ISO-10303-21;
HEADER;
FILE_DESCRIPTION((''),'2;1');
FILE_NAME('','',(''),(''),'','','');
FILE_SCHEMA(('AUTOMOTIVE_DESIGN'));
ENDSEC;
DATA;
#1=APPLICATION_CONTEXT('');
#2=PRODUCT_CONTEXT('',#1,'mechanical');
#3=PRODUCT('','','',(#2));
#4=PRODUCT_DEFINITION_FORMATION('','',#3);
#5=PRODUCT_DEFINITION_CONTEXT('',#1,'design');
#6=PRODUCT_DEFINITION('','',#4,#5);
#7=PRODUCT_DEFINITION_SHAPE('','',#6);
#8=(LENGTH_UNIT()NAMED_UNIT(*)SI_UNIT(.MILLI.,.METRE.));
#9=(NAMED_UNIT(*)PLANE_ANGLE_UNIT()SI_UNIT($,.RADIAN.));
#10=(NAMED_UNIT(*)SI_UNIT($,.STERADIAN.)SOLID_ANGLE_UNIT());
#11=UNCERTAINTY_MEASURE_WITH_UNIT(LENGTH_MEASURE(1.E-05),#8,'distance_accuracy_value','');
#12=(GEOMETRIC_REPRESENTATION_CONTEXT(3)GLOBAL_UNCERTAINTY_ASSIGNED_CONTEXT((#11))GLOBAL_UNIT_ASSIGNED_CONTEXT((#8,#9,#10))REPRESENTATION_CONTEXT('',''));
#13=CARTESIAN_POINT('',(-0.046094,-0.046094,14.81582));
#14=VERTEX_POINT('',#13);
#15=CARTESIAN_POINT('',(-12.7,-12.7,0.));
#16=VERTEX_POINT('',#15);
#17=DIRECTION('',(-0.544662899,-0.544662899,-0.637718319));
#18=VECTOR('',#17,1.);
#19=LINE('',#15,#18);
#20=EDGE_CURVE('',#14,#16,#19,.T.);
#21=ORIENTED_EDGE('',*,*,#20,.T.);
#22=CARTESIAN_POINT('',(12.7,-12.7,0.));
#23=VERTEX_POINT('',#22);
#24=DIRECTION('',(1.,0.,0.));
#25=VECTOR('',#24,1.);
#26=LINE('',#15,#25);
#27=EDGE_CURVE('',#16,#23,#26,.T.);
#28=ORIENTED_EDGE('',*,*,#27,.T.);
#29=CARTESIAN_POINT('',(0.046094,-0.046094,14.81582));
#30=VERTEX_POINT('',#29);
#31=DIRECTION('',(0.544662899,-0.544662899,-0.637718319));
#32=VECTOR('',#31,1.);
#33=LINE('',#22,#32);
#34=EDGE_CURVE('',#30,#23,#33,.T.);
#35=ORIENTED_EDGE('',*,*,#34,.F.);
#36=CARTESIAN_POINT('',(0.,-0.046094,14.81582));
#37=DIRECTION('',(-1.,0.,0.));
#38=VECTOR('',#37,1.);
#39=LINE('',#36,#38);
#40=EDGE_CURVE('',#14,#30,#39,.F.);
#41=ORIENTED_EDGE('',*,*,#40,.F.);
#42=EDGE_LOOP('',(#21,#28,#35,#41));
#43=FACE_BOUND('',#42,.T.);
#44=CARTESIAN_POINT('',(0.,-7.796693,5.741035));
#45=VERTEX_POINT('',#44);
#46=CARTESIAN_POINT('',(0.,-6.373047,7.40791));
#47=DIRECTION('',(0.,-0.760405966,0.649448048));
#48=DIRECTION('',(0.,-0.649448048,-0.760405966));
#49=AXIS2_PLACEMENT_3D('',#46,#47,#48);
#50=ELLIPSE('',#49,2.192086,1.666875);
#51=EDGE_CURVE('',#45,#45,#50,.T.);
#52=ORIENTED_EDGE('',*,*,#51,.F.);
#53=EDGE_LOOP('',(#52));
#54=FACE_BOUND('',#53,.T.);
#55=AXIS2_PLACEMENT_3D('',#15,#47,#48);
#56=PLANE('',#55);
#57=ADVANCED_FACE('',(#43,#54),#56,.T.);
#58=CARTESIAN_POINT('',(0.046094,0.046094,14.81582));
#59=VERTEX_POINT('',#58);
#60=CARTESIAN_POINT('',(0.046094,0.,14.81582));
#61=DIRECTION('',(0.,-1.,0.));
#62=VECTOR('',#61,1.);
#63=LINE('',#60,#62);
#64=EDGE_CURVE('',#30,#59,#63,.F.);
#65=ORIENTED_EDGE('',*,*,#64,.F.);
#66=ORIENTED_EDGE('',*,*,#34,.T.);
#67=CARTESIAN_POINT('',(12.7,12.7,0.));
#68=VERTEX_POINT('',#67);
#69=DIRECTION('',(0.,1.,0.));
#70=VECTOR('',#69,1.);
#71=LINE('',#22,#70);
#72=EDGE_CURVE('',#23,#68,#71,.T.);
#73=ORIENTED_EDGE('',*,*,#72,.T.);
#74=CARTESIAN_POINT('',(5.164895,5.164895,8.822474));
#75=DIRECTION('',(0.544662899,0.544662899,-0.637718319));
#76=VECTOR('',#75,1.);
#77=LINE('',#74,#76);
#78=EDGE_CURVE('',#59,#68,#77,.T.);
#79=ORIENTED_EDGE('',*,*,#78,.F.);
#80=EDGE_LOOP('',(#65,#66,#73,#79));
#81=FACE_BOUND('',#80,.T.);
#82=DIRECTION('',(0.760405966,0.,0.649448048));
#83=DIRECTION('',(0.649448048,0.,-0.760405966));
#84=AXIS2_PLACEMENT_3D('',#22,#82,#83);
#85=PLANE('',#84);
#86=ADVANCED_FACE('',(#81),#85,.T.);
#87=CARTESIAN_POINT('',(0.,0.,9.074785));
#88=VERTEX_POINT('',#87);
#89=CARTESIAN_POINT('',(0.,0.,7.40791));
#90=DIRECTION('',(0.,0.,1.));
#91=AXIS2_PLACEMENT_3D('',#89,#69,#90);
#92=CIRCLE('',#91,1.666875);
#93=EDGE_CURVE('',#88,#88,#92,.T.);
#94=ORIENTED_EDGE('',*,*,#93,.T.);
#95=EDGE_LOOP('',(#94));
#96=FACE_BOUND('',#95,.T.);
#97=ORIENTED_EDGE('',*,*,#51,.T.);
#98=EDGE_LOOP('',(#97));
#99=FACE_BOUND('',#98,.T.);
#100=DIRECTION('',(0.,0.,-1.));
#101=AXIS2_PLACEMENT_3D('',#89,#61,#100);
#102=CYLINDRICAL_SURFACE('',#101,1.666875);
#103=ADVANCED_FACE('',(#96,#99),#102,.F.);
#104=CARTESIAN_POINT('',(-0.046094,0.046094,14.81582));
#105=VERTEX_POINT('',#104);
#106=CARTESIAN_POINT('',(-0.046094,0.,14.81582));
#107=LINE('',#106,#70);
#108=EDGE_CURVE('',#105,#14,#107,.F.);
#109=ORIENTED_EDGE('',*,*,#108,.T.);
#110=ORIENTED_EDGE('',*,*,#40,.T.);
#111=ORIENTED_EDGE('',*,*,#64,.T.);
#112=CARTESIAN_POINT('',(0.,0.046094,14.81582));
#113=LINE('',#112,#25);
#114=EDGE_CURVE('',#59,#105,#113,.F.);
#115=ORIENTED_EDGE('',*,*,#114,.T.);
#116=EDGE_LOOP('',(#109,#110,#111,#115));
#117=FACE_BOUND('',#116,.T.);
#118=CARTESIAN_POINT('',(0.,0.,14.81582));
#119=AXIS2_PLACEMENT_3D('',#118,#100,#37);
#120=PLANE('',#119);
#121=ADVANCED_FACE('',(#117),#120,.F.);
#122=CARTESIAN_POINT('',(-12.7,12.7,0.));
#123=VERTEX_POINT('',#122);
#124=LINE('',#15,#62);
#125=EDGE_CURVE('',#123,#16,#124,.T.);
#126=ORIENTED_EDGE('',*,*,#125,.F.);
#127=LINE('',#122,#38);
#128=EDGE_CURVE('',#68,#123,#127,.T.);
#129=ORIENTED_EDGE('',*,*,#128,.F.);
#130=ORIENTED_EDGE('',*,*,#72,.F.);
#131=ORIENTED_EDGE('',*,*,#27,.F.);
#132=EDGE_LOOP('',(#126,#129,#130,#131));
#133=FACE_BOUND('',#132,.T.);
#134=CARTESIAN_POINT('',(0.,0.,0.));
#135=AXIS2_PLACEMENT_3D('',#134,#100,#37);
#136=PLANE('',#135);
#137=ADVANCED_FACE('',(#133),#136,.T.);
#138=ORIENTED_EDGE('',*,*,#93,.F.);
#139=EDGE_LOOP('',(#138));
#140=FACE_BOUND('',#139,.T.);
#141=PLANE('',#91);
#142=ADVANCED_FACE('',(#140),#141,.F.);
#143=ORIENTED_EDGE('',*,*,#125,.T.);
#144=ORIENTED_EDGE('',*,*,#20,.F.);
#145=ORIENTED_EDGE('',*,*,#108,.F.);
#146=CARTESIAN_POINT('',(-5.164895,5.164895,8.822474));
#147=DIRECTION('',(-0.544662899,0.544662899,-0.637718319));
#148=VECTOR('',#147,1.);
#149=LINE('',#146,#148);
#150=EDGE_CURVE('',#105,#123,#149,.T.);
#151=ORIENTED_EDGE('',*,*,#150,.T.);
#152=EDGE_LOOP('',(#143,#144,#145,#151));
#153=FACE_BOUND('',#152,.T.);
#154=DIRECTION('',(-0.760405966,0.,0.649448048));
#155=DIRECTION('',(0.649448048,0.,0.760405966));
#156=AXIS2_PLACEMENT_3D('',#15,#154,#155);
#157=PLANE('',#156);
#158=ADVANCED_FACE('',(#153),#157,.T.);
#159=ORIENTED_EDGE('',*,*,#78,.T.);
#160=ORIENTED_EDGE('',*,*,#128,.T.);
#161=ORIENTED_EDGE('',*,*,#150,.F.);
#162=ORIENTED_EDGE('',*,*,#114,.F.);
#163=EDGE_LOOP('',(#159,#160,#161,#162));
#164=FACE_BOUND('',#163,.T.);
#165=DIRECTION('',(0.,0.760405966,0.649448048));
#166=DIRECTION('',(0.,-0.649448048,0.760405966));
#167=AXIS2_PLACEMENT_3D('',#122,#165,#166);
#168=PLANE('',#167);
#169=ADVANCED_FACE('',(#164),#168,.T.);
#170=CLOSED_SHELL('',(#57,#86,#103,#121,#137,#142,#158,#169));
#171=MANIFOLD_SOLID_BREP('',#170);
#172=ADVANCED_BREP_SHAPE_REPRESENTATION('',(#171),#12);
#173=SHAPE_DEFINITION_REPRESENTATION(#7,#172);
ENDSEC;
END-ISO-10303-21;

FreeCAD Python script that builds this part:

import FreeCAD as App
import Part
import Sketcher

V = App.Vector
Q = App.Units.Quantity


def add_polygon(sketch, points):
    """Adds a closed chain of lines whose ends are joined by coincident constraints."""
    first, n = sketch.GeometryCount, len(points)
    for a, b in zip(points, points[1:] + points[:1]):
        sketch.addGeometry(Part.LineSegment(App.Vector(*a, 0), App.Vector(*b, 0)), False)
    for i in range(n):
        sketch.addConstraint(Sketcher.Constraint("Coincident", first + i, 2, first + (i + 1) % n, 1))

doc = App.newDocument("Part")
params = doc.addObject("Spreadsheet::Sheet", "Params")
for row, (alias, value) in enumerate([
    ("sketch1_width", "1 in"),
    ("pad1_length", "0.5833 in"),
    ("pad1_taper", "-40.5 deg"),
    ("pocket1_length", "0.5 in"),
], start=1):
    params.set(f"A{row}", alias)
    params.set(f"B{row}", "=" + value)
    params.setAlias(f"B{row}", alias)

body = doc.addObject("PartDesign::Body", "Body")

# Sketch on XY plane
sketch1 = body.newObject("Sketcher::SketchObject", "Sketch")
sketch1.AttachmentSupport = (doc.getObject("XY_Plane"), [""])
sketch1.MapMode = "FlatFace"
add_polygon(sketch1, [(-12.7, 12.7), (-12.7, -12.7), (12.7, -12.7), (12.7, 12.7)])  # lines 0-3
sketch1.addConstraint([
    Sketcher.Constraint("Vertical", 0),
    Sketcher.Constraint("Horizontal", 1),
    Sketcher.Constraint("Vertical", 2),
    Sketcher.Constraint("Horizontal", 3),
    Sketcher.Constraint("Symmetric", 0, 2, 2, 2, -1, 1),
    Sketcher.Constraint("Equal", 3, 0),
    Sketcher.Constraint("DistanceX", 1, 1, 1, 2, Q("1 in")),
])
sketch1.setExpression("Constraints[10]", "Params.sketch1_width")
pad1 = body.newObject("PartDesign::Pad", "Pad")
pad1.Profile = sketch1
pad1.setExpression("Length", "Params.pad1_length")
pad1.setExpression("TaperAngle", "Params.pad1_taper")

# Sketch on XZ plane
sketch2 = body.newObject("Sketcher::SketchObject", "Sketch001")
sketch2.AttachmentSupport = (doc.getObject("XZ_Plane"), [""])
sketch2.MapMode = "FlatFace"
sketch2.AttachmentOffset = App.Placement(V(0, 0, 0.5 * 25.4), App.Rotation())
sketch2.addGeometry(Part.Circle(V(0, 7.40791, 0), V(0, 0, 1), 1.666875), False)
sketch2.addConstraint([
    Sketcher.Constraint("PointOnObject", 0, 3, -2),
    Sketcher.Constraint("Diameter", 0, 3.33375),
    Sketcher.Constraint("DistanceY", -1, 1, 0, 3, 7.40791),
])
pocket1 = body.newObject("PartDesign::Pocket", "Pocket")
pocket1.Profile = sketch2
pocket1.setExpression("Length", "Params.pocket1_length")

doc.recompute()
